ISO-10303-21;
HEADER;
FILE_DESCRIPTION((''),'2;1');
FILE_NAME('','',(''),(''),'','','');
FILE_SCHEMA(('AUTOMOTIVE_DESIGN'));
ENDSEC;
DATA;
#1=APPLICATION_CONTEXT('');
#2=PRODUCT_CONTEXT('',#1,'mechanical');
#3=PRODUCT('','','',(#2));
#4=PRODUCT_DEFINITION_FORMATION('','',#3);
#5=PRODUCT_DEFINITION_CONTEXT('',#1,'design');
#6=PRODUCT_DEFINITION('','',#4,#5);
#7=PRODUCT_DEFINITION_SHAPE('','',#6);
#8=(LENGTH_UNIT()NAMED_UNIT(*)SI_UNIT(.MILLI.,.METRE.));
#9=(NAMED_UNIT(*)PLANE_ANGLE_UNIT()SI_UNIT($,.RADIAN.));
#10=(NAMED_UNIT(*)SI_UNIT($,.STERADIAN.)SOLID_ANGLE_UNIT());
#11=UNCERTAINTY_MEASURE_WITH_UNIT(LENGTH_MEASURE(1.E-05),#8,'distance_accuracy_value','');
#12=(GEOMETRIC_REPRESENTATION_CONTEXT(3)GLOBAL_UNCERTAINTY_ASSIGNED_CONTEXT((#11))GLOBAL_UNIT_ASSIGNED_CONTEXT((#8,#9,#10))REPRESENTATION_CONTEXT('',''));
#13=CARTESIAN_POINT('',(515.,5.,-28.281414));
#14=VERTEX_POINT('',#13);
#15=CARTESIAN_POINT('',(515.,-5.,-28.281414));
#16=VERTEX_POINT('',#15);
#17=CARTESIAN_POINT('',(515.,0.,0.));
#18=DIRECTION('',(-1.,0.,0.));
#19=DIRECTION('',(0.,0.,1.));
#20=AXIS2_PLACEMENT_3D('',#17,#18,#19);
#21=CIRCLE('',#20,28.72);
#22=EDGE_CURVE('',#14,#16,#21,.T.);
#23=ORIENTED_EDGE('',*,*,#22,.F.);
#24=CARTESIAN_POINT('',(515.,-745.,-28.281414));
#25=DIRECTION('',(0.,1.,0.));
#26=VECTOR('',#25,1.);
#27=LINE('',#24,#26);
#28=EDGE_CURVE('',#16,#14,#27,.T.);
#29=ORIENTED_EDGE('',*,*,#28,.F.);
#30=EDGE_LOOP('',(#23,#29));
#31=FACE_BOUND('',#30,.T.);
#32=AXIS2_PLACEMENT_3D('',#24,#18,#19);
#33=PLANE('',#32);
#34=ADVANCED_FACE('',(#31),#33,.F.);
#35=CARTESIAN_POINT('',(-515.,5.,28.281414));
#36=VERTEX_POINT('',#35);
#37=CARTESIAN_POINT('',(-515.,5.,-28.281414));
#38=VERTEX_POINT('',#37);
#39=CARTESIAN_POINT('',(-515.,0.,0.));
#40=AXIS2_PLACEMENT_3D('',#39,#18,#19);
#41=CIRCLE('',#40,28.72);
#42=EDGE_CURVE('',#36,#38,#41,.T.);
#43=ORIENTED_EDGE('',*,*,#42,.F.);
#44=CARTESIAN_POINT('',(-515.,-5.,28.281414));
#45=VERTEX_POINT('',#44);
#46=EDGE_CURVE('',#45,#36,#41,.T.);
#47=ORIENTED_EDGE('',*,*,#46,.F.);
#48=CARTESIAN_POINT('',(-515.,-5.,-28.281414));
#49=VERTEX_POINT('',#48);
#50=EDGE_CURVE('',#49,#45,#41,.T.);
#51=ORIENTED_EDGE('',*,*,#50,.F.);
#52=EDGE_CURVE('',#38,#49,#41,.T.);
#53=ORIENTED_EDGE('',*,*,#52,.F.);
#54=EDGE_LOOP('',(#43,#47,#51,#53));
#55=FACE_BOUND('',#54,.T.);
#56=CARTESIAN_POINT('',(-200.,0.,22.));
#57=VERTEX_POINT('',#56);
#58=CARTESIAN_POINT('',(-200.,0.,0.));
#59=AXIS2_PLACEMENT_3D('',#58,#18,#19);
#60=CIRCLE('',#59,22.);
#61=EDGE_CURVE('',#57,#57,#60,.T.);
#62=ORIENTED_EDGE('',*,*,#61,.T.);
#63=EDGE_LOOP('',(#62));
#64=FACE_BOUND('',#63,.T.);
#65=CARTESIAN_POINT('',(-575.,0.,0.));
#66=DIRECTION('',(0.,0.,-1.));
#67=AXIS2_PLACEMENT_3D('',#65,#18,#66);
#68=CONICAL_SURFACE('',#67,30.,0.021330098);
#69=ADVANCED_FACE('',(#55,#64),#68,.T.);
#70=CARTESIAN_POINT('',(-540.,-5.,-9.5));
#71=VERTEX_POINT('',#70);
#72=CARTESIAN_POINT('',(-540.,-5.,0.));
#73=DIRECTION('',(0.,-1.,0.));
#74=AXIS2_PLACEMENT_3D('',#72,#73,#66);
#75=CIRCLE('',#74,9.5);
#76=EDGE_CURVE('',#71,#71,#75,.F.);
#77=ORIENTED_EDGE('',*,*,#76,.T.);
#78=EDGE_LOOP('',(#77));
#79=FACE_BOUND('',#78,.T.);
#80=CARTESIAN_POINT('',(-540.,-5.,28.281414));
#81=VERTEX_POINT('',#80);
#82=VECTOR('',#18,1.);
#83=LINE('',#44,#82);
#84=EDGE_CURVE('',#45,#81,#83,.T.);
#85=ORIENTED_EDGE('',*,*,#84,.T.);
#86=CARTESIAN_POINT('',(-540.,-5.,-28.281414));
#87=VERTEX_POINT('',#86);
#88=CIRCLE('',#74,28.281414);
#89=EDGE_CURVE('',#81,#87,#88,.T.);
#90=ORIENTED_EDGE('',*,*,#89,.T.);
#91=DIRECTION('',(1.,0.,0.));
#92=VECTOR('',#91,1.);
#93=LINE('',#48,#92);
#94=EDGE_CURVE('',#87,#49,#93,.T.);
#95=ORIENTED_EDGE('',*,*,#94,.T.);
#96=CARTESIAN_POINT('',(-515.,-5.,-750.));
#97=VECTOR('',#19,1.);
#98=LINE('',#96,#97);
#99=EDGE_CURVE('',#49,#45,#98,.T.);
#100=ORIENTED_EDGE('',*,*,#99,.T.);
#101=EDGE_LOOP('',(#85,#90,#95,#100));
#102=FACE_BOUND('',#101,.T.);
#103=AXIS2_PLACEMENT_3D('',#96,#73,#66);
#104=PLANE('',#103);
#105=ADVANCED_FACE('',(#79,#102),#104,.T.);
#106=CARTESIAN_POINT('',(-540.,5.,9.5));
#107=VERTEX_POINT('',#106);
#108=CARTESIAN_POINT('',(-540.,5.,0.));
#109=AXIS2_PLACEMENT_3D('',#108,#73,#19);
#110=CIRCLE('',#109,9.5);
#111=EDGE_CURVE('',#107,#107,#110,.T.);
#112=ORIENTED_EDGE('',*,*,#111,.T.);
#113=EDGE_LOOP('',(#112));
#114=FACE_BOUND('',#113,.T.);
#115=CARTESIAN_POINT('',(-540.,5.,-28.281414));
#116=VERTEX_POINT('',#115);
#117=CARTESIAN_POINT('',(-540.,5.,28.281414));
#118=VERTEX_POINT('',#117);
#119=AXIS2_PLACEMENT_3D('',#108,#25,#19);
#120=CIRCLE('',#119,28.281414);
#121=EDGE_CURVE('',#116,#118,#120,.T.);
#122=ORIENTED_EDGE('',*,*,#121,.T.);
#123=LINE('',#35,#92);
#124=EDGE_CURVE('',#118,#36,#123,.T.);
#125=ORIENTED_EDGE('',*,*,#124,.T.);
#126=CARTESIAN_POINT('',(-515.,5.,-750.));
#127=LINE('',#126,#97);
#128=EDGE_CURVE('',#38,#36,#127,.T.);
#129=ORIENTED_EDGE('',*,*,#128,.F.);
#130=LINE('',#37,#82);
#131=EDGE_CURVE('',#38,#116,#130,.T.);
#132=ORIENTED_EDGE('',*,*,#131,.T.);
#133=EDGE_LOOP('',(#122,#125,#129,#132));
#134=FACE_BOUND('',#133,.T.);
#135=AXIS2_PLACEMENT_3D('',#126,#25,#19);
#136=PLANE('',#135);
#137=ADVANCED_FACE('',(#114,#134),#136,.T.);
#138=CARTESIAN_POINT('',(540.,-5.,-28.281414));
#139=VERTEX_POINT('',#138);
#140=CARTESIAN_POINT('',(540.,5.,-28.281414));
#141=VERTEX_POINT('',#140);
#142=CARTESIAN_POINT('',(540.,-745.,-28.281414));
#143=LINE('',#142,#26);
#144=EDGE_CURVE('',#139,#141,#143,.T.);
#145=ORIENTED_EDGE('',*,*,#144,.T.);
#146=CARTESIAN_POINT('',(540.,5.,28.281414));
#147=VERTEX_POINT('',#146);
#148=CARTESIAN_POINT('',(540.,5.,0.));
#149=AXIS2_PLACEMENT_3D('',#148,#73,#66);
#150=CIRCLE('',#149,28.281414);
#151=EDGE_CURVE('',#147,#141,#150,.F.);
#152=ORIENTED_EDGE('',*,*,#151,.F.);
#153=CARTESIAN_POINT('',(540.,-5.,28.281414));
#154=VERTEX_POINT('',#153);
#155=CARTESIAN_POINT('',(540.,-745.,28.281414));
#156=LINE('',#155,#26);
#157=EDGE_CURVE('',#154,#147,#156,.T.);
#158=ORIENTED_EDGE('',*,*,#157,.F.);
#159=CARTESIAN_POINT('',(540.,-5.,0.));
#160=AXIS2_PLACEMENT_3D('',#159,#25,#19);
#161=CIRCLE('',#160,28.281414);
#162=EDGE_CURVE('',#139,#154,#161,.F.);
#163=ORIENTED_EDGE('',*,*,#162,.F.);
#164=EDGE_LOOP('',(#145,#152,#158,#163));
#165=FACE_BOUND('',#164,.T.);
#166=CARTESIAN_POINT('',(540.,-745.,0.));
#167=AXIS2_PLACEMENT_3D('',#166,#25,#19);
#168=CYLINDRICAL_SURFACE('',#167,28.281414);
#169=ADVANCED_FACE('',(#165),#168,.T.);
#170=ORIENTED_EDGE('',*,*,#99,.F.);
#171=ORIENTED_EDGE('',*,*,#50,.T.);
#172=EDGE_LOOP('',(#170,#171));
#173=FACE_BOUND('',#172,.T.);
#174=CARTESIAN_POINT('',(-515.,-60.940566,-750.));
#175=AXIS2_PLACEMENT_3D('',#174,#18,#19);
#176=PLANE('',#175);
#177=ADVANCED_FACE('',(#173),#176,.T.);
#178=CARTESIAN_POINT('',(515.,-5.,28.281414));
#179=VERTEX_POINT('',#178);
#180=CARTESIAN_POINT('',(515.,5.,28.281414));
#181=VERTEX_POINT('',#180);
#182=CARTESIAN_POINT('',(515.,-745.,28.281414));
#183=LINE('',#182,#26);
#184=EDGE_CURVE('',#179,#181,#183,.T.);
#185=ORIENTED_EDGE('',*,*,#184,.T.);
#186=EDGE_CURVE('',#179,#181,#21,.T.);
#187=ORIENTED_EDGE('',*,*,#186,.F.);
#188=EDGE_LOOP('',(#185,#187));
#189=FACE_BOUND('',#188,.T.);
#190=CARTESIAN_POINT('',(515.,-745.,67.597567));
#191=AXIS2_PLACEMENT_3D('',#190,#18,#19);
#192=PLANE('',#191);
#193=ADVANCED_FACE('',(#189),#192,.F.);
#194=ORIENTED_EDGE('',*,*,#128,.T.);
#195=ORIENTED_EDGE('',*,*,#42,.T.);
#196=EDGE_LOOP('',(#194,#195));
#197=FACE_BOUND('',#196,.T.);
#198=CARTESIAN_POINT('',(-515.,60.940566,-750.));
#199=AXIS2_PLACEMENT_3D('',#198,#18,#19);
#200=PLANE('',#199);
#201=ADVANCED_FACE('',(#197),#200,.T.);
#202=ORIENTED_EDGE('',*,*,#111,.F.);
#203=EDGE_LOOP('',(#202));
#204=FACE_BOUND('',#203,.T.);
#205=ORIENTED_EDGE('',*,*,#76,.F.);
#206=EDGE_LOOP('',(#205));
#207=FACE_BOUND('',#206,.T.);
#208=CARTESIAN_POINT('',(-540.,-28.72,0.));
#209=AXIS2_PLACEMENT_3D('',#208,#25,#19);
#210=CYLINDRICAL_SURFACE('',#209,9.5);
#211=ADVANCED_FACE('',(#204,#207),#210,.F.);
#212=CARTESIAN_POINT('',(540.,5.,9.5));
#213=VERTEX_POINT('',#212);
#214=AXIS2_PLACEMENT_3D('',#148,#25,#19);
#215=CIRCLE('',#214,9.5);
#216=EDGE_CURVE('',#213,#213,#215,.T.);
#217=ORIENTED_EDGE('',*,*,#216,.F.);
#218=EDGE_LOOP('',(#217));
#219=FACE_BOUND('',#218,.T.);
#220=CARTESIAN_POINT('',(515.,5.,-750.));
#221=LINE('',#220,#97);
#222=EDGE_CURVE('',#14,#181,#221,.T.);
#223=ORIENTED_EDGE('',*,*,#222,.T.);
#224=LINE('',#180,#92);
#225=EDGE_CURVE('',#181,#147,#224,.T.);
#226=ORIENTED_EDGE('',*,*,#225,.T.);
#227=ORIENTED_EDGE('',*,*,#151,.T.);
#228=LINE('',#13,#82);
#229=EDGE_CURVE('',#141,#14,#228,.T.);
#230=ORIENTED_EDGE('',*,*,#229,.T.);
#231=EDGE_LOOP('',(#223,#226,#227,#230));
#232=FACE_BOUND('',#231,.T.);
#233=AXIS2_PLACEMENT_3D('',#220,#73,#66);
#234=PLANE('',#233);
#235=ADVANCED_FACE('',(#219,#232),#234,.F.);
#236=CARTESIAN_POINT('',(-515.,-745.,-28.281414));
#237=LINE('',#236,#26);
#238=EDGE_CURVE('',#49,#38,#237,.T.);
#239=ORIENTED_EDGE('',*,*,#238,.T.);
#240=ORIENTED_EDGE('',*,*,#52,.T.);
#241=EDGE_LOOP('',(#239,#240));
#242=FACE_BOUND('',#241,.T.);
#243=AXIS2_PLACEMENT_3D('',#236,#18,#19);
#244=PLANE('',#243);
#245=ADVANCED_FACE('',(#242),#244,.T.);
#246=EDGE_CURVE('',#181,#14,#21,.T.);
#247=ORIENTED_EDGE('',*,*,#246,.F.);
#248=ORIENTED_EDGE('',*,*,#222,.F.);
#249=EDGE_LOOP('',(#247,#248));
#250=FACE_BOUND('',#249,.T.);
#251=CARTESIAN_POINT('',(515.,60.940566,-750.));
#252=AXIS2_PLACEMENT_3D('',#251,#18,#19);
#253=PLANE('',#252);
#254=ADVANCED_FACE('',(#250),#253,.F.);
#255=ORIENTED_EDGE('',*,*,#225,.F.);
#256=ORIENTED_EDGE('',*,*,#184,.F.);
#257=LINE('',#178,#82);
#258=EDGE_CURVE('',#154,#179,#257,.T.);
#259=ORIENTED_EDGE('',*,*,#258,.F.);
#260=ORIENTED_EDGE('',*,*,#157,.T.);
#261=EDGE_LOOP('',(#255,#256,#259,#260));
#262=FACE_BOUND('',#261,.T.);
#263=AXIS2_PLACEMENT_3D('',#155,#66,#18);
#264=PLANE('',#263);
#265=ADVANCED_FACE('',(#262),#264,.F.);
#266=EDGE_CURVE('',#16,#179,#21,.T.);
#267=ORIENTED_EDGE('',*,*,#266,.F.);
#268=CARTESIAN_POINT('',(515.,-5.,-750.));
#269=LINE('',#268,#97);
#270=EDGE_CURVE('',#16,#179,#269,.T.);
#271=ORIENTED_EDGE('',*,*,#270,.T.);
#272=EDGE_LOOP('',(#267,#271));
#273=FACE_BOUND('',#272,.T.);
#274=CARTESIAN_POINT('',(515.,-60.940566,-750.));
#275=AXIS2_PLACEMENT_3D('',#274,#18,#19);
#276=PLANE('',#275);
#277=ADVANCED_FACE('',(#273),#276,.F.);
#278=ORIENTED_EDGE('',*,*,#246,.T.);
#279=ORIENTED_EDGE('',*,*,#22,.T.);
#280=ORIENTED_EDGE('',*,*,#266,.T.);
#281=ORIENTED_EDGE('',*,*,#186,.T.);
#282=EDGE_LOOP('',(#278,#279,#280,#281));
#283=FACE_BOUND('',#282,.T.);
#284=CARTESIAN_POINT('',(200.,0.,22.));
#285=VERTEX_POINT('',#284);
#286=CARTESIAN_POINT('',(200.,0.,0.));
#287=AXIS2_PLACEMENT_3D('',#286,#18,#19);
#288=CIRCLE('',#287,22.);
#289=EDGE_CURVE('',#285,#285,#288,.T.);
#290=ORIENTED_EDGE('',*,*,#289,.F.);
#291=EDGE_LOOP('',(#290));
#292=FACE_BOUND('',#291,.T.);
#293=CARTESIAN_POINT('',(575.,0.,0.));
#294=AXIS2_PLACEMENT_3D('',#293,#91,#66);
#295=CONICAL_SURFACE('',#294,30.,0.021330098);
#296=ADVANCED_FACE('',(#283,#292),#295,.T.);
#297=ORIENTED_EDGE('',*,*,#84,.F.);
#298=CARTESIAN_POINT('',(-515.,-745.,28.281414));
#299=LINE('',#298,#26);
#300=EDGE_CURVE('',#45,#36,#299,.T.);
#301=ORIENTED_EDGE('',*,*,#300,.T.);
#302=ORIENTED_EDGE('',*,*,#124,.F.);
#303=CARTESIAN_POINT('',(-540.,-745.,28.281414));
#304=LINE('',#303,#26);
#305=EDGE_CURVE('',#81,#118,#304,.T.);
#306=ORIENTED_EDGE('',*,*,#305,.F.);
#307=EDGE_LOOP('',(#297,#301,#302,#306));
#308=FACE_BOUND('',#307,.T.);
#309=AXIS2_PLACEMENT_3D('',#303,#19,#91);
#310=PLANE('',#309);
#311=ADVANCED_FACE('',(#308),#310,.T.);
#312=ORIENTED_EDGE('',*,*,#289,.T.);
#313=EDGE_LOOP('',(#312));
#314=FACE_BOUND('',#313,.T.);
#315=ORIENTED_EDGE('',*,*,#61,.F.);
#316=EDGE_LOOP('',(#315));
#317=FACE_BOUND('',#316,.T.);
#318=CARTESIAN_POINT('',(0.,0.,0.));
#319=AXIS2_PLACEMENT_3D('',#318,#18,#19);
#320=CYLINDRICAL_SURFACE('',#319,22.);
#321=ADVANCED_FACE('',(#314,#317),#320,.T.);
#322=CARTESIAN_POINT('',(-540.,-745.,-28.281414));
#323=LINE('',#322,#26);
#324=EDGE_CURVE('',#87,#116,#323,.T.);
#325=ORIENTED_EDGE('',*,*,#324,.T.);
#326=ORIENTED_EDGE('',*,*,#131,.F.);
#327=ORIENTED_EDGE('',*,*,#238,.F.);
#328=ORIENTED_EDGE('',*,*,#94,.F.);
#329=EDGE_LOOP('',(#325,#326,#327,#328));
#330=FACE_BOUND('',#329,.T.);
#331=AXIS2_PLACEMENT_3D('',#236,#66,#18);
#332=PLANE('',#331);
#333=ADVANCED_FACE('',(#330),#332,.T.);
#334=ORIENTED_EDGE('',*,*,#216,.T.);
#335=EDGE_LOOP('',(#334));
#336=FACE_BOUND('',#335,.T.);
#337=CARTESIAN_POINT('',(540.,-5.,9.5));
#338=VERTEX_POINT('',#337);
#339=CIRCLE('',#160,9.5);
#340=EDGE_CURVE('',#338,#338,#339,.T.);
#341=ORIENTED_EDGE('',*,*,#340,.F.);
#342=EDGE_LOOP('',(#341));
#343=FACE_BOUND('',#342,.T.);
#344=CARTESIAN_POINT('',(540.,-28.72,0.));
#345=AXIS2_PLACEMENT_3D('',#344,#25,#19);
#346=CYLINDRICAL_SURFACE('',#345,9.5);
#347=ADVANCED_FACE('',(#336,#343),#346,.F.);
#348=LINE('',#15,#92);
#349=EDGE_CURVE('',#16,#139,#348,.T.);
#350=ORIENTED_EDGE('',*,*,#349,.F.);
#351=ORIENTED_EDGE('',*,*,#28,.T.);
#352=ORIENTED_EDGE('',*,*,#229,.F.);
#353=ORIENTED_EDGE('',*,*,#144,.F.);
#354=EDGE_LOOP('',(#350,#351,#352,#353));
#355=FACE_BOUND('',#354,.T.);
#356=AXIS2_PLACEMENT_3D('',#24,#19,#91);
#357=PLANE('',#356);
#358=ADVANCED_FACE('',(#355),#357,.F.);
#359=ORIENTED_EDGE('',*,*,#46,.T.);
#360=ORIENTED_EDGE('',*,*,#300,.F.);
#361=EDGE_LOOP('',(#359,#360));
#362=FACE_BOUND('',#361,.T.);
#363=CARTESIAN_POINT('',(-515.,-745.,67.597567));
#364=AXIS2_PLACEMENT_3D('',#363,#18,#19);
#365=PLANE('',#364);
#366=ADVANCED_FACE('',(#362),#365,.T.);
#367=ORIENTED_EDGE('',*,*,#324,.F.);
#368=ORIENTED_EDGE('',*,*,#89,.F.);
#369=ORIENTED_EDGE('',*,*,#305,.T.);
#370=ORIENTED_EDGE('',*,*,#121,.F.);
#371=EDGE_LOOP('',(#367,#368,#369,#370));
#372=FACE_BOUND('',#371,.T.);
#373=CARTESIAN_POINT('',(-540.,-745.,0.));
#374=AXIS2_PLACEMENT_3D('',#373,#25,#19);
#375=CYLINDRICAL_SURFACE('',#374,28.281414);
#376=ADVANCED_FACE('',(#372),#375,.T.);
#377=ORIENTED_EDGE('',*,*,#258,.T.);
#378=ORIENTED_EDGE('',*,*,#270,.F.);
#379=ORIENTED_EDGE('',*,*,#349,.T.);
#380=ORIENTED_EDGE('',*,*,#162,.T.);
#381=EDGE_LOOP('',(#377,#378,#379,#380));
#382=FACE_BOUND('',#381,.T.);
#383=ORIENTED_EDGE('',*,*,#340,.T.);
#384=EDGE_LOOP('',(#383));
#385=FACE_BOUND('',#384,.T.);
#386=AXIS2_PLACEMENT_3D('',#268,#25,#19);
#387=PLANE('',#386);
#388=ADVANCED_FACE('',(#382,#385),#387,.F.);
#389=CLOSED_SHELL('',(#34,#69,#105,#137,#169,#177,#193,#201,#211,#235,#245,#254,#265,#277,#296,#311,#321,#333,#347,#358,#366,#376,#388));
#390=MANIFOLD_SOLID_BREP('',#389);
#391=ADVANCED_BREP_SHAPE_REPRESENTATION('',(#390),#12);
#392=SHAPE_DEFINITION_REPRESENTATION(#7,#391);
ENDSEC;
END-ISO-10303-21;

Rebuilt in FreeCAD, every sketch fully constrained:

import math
import FreeCAD as App
import Part
import Sketcher

doc = App.newDocument("Part")
params = doc.addObject("Spreadsheet::Sheet", "Params")
for row, (alias, value) in enumerate([
    ("sketch1_width", "575 mm"),
    ("sketch1_width2", "200 mm"),
    ("sketch1_height", "30 mm"),
    ("sketch1_height2", "22 mm"),
    ("revolution_angle", "360 deg"),
    ("pocket1_length", "1500 mm"),
    ("sketch3_width", "25 mm"),
    ("pocket2_length", "1500 mm"),
    ("sketch4_diameter", "19 mm"),
], start=1):
    params.set(f"A{row}", alias)
    params.set(f"B{row}", "=" + value)
    params.setAlias(f"B{row}", alias)

body = doc.addObject("PartDesign::Body", "Body")

# Sketch on XZ plane
sketch1 = doc.addObject("Sketcher::SketchObject", "Sketch")
body.addObject(sketch1)
sketch1.AttachmentSupport = (doc.XZ_Plane, [""])
sketch1.MapMode = "FlatFace"
sketch1.addGeometry([
    Part.LineSegment(App.Vector(0, 0, 0), App.Vector(575, 0, 0)),  # 0
    Part.LineSegment(App.Vector(575, 0, 0), App.Vector(575, -30, 0)),  # 1
    Part.LineSegment(App.Vector(575, -30, 0), App.Vector(200, -22, 0)),  # 2
    Part.LineSegment(App.Vector(200, -22, 0), App.Vector(0, -22, 0)),  # 3
    Part.LineSegment(App.Vector(0, -22, 0), App.Vector(0, 0, 0)),  # 4
], False)
sketch1.addConstraint([
    Sketcher.Constraint("Coincident", 0, 2, 1, 1),
    Sketcher.Constraint("Coincident", 1, 2, 2, 1),
    Sketcher.Constraint("Coincident", 2, 2, 3, 1),
    Sketcher.Constraint("Coincident", 3, 2, 4, 1),
    Sketcher.Constraint("Coincident", 4, 2, 0, 1),
    Sketcher.Constraint("Horizontal", 0),
    Sketcher.Constraint("Vertical", 1),
    Sketcher.Constraint("Horizontal", 3),
    Sketcher.Constraint("Vertical", 4),
    Sketcher.Constraint("Coincident", 4, 2, -1, 1),
    Sketcher.Constraint("DistanceX", 0, 1, 0, 2, 575.0),
    Sketcher.Constraint("DistanceX", 3, 2, 3, 1, 200.0),
    Sketcher.Constraint("DistanceY", 1, 2, 1, 1, 30.0),
    Sketcher.Constraint("DistanceY", 4, 1, 4, 2, 22.0),
])
sketch1.setExpression("Constraints[10]", "Params.sketch1_width")
sketch1.setExpression("Constraints[11]", "Params.sketch1_width2")
sketch1.setExpression("Constraints[12]", "Params.sketch1_height")
sketch1.setExpression("Constraints[13]", "Params.sketch1_height2")
revolution = doc.addObject("PartDesign::Revolution", "Revolution")
body.addObject(revolution)
revolution.Profile = sketch1
revolution.ReferenceAxis = (sketch1, ["H_Axis"])
revolution.setExpression("Angle", "Params.revolution_angle")

# Sketch on XY plane
sketch2 = doc.addObject("Sketcher::SketchObject", "Sketch001")
body.addObject(sketch2)
sketch2.AttachmentSupport = (doc.XY_Plane, [""])
sketch2.MapMode = "FlatFace"
sketch2.addGeometry([
    Part.LineSegment(App.Vector(515, -5, 0), App.Vector(515, -61, 0)),  # 0
    Part.LineSegment(App.Vector(515, -61, 0), App.Vector(644, -61, 0)),  # 1
    Part.LineSegment(App.Vector(644, -61, 0), App.Vector(644, -5, 0)),  # 2
    Part.LineSegment(App.Vector(644, -5, 0), App.Vector(515, -5, 0)),  # 3
    Part.LineSegment(App.Vector(515, 61, 0), App.Vector(515, 5, 0)),  # 4
    Part.LineSegment(App.Vector(515, 5, 0), App.Vector(644, 5, 0)),  # 5
    Part.LineSegment(App.Vector(644, 5, 0), App.Vector(644, 61, 0)),  # 6
    Part.LineSegment(App.Vector(644, 61, 0), App.Vector(515, 61, 0)),  # 7
], False)
sketch2.addConstraint([
    Sketcher.Constraint("Coincident", 0, 2, 1, 1),
    Sketcher.Constraint("Coincident", 1, 2, 2, 1),
    Sketcher.Constraint("Coincident", 2, 2, 3, 1),
    Sketcher.Constraint("Coincident", 3, 2, 0, 1),
    Sketcher.Constraint("Coincident", 4, 2, 5, 1),
    Sketcher.Constraint("Coincident", 5, 2, 6, 1),
    Sketcher.Constraint("Coincident", 6, 2, 7, 1),
    Sketcher.Constraint("Coincident", 7, 2, 4, 1),
    Sketcher.Constraint("Vertical", 0),
    Sketcher.Constraint("Horizontal", 1),
    Sketcher.Constraint("Vertical", 2),
    Sketcher.Constraint("Horizontal", 3),
    Sketcher.Constraint("Vertical", 4),
    Sketcher.Constraint("Horizontal", 5),
    Sketcher.Constraint("Vertical", 6),
    Sketcher.Constraint("Horizontal", 7),
    Sketcher.Constraint("Symmetric", 3, 2, 4, 2, -1),
    Sketcher.Constraint("Symmetric", 1, 2, 6, 2, -1),
    Sketcher.Constraint("DistanceX", -1, 1, 0, 2, 515.0),
    Sketcher.Constraint("DistanceY", 2, 2, -1, 1, 5.0),
    Sketcher.Constraint("DistanceX", 1, 1, 1, 2, 128.615835),
    Sketcher.Constraint("DistanceY", 0, 2, 0, 1, 55.940566),
])
pocket1 = doc.addObject("PartDesign::Pocket", "Pocket")
body.addObject(pocket1)
pocket1.Profile = sketch2
pocket1.setExpression("Length", "Params.pocket1_length")
pocket1.Midplane = True

# Sketch on XZ plane
sketch3 = doc.addObject("Sketcher::SketchObject", "Sketch002")
body.addObject(sketch3)
sketch3.AttachmentSupport = (doc.XZ_Plane, [""])
sketch3.MapMode = "FlatFace"
sketch3.AttachmentOffset = App.Placement(App.Vector(0, 0, -5), App.Rotation())
sketch3.addGeometry([
    Part.LineSegment(App.Vector(515, -28, 0), App.Vector(540, -28, 0)),  # 0
    Part.ArcOfCircle(Part.Circle(App.Vector(540, 0, 0), App.Vector(0, 0, 1), 28), math.radians(-90), math.radians(90)),  # 1
    Part.LineSegment(App.Vector(540, 28, 0), App.Vector(515, 28, 0)),  # 2
    Part.LineSegment(App.Vector(515, 28, 0), App.Vector(515, 68, 0)),  # 3
    Part.LineSegment(App.Vector(515, 68, 0), App.Vector(605, 68, 0)),  # 4
    Part.LineSegment(App.Vector(605, 68, 0), App.Vector(605, -62, 0)),  # 5
    Part.LineSegment(App.Vector(605, -62, 0), App.Vector(515, -62, 0)),  # 6
    Part.LineSegment(App.Vector(515, -62, 0), App.Vector(515, -28, 0)),  # 7
], False)
sketch3.addConstraint([
    Sketcher.Constraint("Tangent", 0, 2, 1, 1),
    Sketcher.Constraint("Tangent", 1, 2, 2, 1),
    Sketcher.Constraint("Coincident", 2, 2, 3, 1),
    Sketcher.Constraint("Coincident", 3, 2, 4, 1),
    Sketcher.Constraint("Coincident", 4, 2, 5, 1),
    Sketcher.Constraint("Coincident", 5, 2, 6, 1),
    Sketcher.Constraint("Coincident", 6, 2, 7, 1),
    Sketcher.Constraint("Coincident", 7, 2, 0, 1),
    Sketcher.Constraint("Horizontal", 0),
    Sketcher.Constraint("Horizontal", 2),
    Sketcher.Constraint("Vertical", 3),
    Sketcher.Constraint("Horizontal", 4),
    Sketcher.Constraint("Vertical", 5),
    Sketcher.Constraint("Horizontal", 6),
    Sketcher.Constraint("Vertical", 7),
    Sketcher.Constraint("Symmetric", 2, 2, 7, 2, -1),
    Sketcher.Constraint("DistanceX", 0, 1, 0, 2, 25.0),
    Sketcher.Constraint("DistanceX", -1, 1, 1, 3, 540.0),
    Sketcher.Constraint("Radius", 1, 28.281414),
    Sketcher.Constraint("DistanceX", 4, 1, 4, 2, 89.606662),
    Sketcher.Constraint("DistanceY", 7, 1, 7, 2, 33.278782),
    Sketcher.Constraint("DistanceY", 3, 1, 3, 2, 39.316153),
])
sketch3.setExpression("Constraints[16]", "Params.sketch3_width")
pocket2 = doc.addObject("PartDesign::Pocket", "Pocket001")
body.addObject(pocket2)
pocket2.Profile = sketch3
pocket2.setExpression("Length", "Params.pocket2_length")
pocket2.Midplane = True

# Sketch on XZ plane
sketch4 = doc.addObject("Sketcher::SketchObject", "Sketch003")
body.addObject(sketch4)
sketch4.AttachmentSupport = (doc.XZ_Plane, [""])
sketch4.MapMode = "FlatFace"
sketch4.AttachmentOffset = App.Placement(App.Vector(0, 0, -5), App.Rotation())
sketch4.addGeometry(Part.Circle(App.Vector(540, 0, 0), App.Vector(0, 0, 1), 10), False)
sketch4.addConstraint([
    Sketcher.Constraint("PointOnObject", 0, 3, -1),
    Sketcher.Constraint("Diameter", 0, 19.0),
    Sketcher.Constraint("DistanceX", -1, 1, 0, 3, 540.0),
])
sketch4.setExpression("Constraints[1]", "Params.sketch4_diameter")
pocket3 = doc.addObject("PartDesign::Pocket", "Pocket002")
body.addObject(pocket3)
pocket3.Profile = sketch4
pocket3.Type = "ThroughAll"
pocket3.Reversed = True
doc.recompute()

mirrored = doc.addObject("PartDesign::Mirrored", "Mirrored")
body.addObject(mirrored)
mirrored.Originals = [revolution, pocket1, pocket2, pocket3]
mirrored.MirrorPlane = (doc.YZ_Plane, [""])
body.Tip = mirrored

doc.recompute()
